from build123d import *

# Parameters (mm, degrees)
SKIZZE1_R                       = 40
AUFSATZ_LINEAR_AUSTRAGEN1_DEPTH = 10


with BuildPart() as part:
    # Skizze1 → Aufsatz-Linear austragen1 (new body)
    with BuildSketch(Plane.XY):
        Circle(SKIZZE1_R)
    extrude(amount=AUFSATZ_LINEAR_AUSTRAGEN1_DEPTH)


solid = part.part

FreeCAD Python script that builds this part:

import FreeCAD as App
import Part
import Sketcher

doc = App.newDocument("Part")
body = doc.addObject("PartDesign::Body", "Body")

sketch1 = body.newObject("Sketcher::SketchObject", "Sketch")
sketch1.AttachmentSupport = (doc.getObject("XY_Plane"), [""])
sketch1.MapMode = "FlatFace"
sketch1.addGeometry(Part.Circle(App.Vector(0, 0, 0), App.Vector(0, 0, 1), 40), False)
sketch1.addConstraint(Sketcher.Constraint("Coincident", 0, 3, -1, 1))
sketch1.addConstraint(Sketcher.Constraint("Diameter", 0, 80.0))
pad1 = body.newObject("PartDesign::Pad", "Pad")
pad1.Profile = sketch1
pad1.Length = 10

doc.recompute()
